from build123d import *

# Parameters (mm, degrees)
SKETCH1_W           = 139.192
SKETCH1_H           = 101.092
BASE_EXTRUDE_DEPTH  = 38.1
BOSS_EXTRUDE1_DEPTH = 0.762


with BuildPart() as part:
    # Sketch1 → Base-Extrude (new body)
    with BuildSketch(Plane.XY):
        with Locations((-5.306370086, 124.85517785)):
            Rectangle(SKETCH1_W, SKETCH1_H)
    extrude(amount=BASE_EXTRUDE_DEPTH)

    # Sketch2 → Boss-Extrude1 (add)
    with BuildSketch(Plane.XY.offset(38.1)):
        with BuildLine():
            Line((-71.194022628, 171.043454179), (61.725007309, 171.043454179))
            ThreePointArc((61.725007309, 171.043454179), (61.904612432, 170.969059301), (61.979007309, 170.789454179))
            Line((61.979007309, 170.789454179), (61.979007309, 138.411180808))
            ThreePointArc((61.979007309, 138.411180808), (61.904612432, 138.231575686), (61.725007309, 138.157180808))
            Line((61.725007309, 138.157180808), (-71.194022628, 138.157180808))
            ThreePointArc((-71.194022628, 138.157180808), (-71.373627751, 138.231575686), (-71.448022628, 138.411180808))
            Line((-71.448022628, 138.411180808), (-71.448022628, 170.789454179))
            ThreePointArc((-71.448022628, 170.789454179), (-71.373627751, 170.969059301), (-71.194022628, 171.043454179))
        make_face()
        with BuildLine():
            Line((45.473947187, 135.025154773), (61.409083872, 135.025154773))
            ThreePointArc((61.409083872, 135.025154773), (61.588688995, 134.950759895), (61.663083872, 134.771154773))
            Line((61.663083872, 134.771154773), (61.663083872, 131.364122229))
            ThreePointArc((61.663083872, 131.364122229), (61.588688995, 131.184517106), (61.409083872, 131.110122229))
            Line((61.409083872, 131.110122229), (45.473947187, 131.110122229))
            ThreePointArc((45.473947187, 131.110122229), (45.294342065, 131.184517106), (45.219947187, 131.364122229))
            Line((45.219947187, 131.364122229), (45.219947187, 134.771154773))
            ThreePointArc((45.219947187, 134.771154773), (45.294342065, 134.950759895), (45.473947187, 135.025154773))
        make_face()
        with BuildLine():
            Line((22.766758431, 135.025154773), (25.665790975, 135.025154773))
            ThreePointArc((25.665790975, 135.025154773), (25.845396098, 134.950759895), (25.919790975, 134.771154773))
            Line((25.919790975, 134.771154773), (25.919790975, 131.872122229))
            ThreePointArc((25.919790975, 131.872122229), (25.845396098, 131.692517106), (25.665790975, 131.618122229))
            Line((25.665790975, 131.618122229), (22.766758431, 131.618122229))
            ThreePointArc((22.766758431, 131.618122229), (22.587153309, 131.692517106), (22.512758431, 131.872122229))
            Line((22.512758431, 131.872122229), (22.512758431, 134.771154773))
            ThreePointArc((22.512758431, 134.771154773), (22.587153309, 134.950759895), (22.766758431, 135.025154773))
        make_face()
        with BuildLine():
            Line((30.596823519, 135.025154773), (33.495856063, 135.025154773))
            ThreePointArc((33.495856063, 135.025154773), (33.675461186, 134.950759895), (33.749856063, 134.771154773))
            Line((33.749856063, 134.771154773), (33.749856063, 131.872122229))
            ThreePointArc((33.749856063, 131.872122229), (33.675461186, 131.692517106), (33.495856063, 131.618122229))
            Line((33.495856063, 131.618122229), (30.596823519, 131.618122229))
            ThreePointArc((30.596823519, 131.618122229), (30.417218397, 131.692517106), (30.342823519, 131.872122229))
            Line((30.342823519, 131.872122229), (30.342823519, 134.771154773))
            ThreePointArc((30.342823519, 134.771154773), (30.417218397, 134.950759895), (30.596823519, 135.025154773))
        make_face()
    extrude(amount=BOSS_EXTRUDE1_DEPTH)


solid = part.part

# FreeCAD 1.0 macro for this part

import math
import FreeCAD as App
import Part
import Sketcher

V = App.Vector
Q = App.Units.Quantity

doc = App.newDocument("Part")
body = doc.addObject("PartDesign::Body", "Body")

# Sketch on XY plane
sketch1 = body.newObject("Sketcher::SketchObject", "Sketch")
sketch1.AttachmentSupport = (doc.getObject("XY_Plane"), [""])
sketch1.MapMode = "FlatFace"
sketch1.addGeometry(Part.LineSegment(V(-75, 175, 0), V(-75, 74, 0)), False)
sketch1.addGeometry(Part.LineSegment(V(-75, 74, 0), V(64, 74, 0)), False)
sketch1.addGeometry(Part.LineSegment(V(64, 74, 0), V(64, 175, 0)), False)
sketch1.addGeometry(Part.LineSegment(V(64, 175, 0), V(-75, 175, 0)), False)
sketch1.addConstraint(Sketcher.Constraint("Coincident", 0, 2, 1, 1))
sketch1.addConstraint(Sketcher.Constraint("Coincident", 1, 2, 2, 1))
sketch1.addConstraint(Sketcher.Constraint("Coincident", 2, 2, 3, 1))
sketch1.addConstraint(Sketcher.Constraint("Coincident", 3, 2, 0, 1))
sketch1.addConstraint(Sketcher.Constraint("Vertical", 0))
sketch1.addConstraint(Sketcher.Constraint("Horizontal", 1))
sketch1.addConstraint(Sketcher.Constraint("Vertical", 2))
sketch1.addConstraint(Sketcher.Constraint("Horizontal", 3))
sketch1.addConstraint(Sketcher.Constraint("DistanceX", 1, 1, 1, 2, Q("5.48 in")))
sketch1.addConstraint(Sketcher.Constraint("DistanceY", 0, 2, 0, 1, Q("3.98 in")))
sketch1.addConstraint(Sketcher.Constraint("DistanceX", 0, 2, -1, 1, Q("74.90237 mm")))
sketch1.addConstraint(Sketcher.Constraint("DistanceY", -1, 1, 0, 2, Q("74.309178 mm")))
pad1 = body.newObject("PartDesign::Pad", "Pad")
pad1.Profile = sketch1
pad1.Length = Q("1.5 in")

# Sketch on XY plane
sketch2 = body.newObject("Sketcher::SketchObject", "Sketch001")
sketch2.AttachmentSupport = (doc.getObject("XY_Plane"), [""])
sketch2.MapMode = "FlatFace"
sketch2.AttachmentOffset = App.Placement(V(0, 0, 1.5 * 25.4), App.Rotation())
sketch2.addGeometry(Part.LineSegment(V(61.73, 171.04, 0), V(-71.19, 171.04, 0)), False)
sketch2.addGeometry(Part.ArcOfCircle(Part.Circle(V(-71.19, 170.79, 0), V(0, 0, 1), 0.25), math.radians(90), math.radians(180)), False)
sketch2.addGeometry(Part.LineSegment(V(-71.45, 170.79, 0), V(-71.45, 138.41, 0)), False)
sketch2.addGeometry(Part.ArcOfCircle(Part.Circle(V(-71.19, 138.41, 0), V(0, 0, 1), 0.25), math.radians(180), math.radians(270)), False)
sketch2.addGeometry(Part.LineSegment(V(-71.19, 138.16, 0), V(61.73, 138.16, 0)), False)
sketch2.addGeometry(Part.ArcOfCircle(Part.Circle(V(61.73, 138.41, 0), V(0, 0, 1), 0.25), math.radians(-90), math.radians(0)), False)
sketch2.addGeometry(Part.LineSegment(V(61.98, 138.41, 0), V(61.98, 170.79, 0)), False)
sketch2.addGeometry(Part.ArcOfCircle(Part.Circle(V(61.73, 170.79, 0), V(0, 0, 1), 0.25), math.radians(0), math.radians(90)), False)
sketch2.addGeometry(Part.LineSegment(V(61.41, 135.03, 0), V(45.47, 135.03, 0)), False)
sketch2.addGeometry(Part.ArcOfCircle(Part.Circle(V(45.47, 134.77, 0), V(0, 0, 1), 0.25), math.radians(90), math.radians(180)), False)
sketch2.addGeometry(Part.LineSegment(V(45.22, 134.77, 0), V(45.22, 131.36, 0)), False)
sketch2.addGeometry(Part.ArcOfCircle(Part.Circle(V(45.47, 131.36, 0), V(0, 0, 1), 0.25), math.radians(180), math.radians(270)), False)
sketch2.addGeometry(Part.LineSegment(V(45.47, 131.11, 0), V(61.41, 131.11, 0)), False)
sketch2.addGeometry(Part.ArcOfCircle(Part.Circle(V(61.41, 131.36, 0), V(0, 0, 1), 0.25), math.radians(-90), math.radians(0)), False)
sketch2.addGeometry(Part.LineSegment(V(61.66, 131.36, 0), V(61.66, 134.77, 0)), False)
sketch2.addGeometry(Part.ArcOfCircle(Part.Circle(V(61.41, 134.77, 0), V(0, 0, 1), 0.25), math.radians(0), math.radians(90)), False)
sketch2.addGeometry(Part.LineSegment(V(25.67, 135.03, 0), V(22.77, 135.03, 0)), False)
sketch2.addGeometry(Part.ArcOfCircle(Part.Circle(V(22.77, 134.77, 0), V(0, 0, 1), 0.25), math.radians(90), math.radians(180)), False)
sketch2.addGeometry(Part.LineSegment(V(22.51, 134.77, 0), V(22.51, 131.87, 0)), False)
sketch2.addGeometry(Part.ArcOfCircle(Part.Circle(V(22.77, 131.87, 0), V(0, 0, 1), 0.25), math.radians(180), math.radians(270)), False)
sketch2.addGeometry(Part.LineSegment(V(22.77, 131.62, 0), V(25.67, 131.62, 0)), False)
sketch2.addGeometry(Part.ArcOfCircle(Part.Circle(V(25.67, 131.87, 0), V(0, 0, 1), 0.25), math.radians(-90), math.radians(0)), False)
sketch2.addGeometry(Part.LineSegment(V(25.92, 131.87, 0), V(25.92, 134.77, 0)), False)
sketch2.addGeometry(Part.ArcOfCircle(Part.Circle(V(25.67, 134.77, 0), V(0, 0, 1), 0.25), math.radians(0), math.radians(90)), False)
sketch2.addGeometry(Part.LineSegment(V(33.5, 135.03, 0), V(30.6, 135.03, 0)), False)
sketch2.addGeometry(Part.ArcOfCircle(Part.Circle(V(30.6, 134.77, 0), V(0, 0, 1), 0.25), math.radians(90), math.radians(180)), False)
sketch2.addGeometry(Part.LineSegment(V(30.34, 134.77, 0), V(30.34, 131.87, 0)), False)
sketch2.addGeometry(Part.ArcOfCircle(Part.Circle(V(30.6, 131.87, 0), V(0, 0, 1), 0.25), math.radians(180), math.radians(270)), False)
sketch2.addGeometry(Part.LineSegment(V(30.6, 131.62, 0), V(33.5, 131.62, 0)), False)
sketch2.addGeometry(Part.ArcOfCircle(Part.Circle(V(33.5, 131.87, 0), V(0, 0, 1), 0.25), math.radians(-90), math.radians(0)), False)
sketch2.addGeometry(Part.LineSegment(V(33.75, 131.87, 0), V(33.75, 134.77, 0)), False)
sketch2.addGeometry(Part.ArcOfCircle(Part.Circle(V(33.5, 134.77, 0), V(0, 0, 1), 0.25), math.radians(0), math.radians(90)), False)
sketch2.addConstraint(Sketcher.Constraint("Tangent", 0, 2, 1, 1))
sketch2.addConstraint(Sketcher.Constraint("Tangent", 1, 2, 2, 1))
sketch2.addConstraint(Sketcher.Constraint("Tangent", 2, 2, 3, 1))
sketch2.addConstraint(Sketcher.Constraint("Tangent", 3, 2, 4, 1))
sketch2.addConstraint(Sketcher.Constraint("Tangent", 4, 2, 5, 1))
sketch2.addConstraint(Sketcher.Constraint("Tangent", 5, 2, 6, 1))
sketch2.addConstraint(Sketcher.Constraint("Tangent", 6, 2, 7, 1))
sketch2.addConstraint(Sketcher.Constraint("Tangent", 7, 2, 0, 1))
sketch2.addConstraint(Sketcher.Constraint("Tangent", 8, 2, 9, 1))
sketch2.addConstraint(Sketcher.Constraint("Tangent", 9, 2, 10, 1))
sketch2.addConstraint(Sketcher.Constraint("Tangent", 10, 2, 11, 1))
sketch2.addConstraint(Sketcher.Constraint("Tangent", 11, 2, 12, 1))
sketch2.addConstraint(Sketcher.Constraint("Tangent", 12, 2, 13, 1))
sketch2.addConstraint(Sketcher.Constraint("Tangent", 13, 2, 14, 1))
sketch2.addConstraint(Sketcher.Constraint("Tangent", 14, 2, 15, 1))
sketch2.addConstraint(Sketcher.Constraint("Tangent", 15, 2, 8, 1))
sketch2.addConstraint(Sketcher.Constraint("Tangent", 16, 2, 17, 1))
sketch2.addConstraint(Sketcher.Constraint("Tangent", 17, 2, 18, 1))
sketch2.addConstraint(Sketcher.Constraint("Tangent", 18, 2, 19, 1))
sketch2.addConstraint(Sketcher.Constraint("Tangent", 19, 2, 20, 1))
sketch2.addConstraint(Sketcher.Constraint("Tangent", 20, 2, 21, 1))
sketch2.addConstraint(Sketcher.Constraint("Tangent", 21, 2, 22, 1))
sketch2.addConstraint(Sketcher.Constraint("Tangent", 22, 2, 23, 1))
sketch2.addConstraint(Sketcher.Constraint("Tangent", 23, 2, 16, 1))
sketch2.addConstraint(Sketcher.Constraint("Tangent", 24, 2, 25, 1))
sketch2.addConstraint(Sketcher.Constraint("Tangent", 25, 2, 26, 1))
sketch2.addConstraint(Sketcher.Constraint("Tangent", 26, 2, 27, 1))
sketch2.addConstraint(Sketcher.Constraint("Tangent", 27, 2, 28, 1))
sketch2.addConstraint(Sketcher.Constraint("Tangent", 28, 2, 29, 1))
sketch2.addConstraint(Sketcher.Constraint("Tangent", 29, 2, 30, 1))
sketch2.addConstraint(Sketcher.Constraint("Tangent", 30, 2, 31, 1))
sketch2.addConstraint(Sketcher.Constraint("Tangent", 31, 2, 24, 1))
sketch2.addConstraint(Sketcher.Constraint("Horizontal", 0))
sketch2.addConstraint(Sketcher.Constraint("Vertical", 2))
sketch2.addConstraint(Sketcher.Constraint("Horizontal", 4))
sketch2.addConstraint(Sketcher.Constraint("Vertical", 6))
sketch2.addConstraint(Sketcher.Constraint("Horizontal", 8))
sketch2.addConstraint(Sketcher.Constraint("Vertical", 10))
sketch2.addConstraint(Sketcher.Constraint("Horizontal", 12))
sketch2.addConstraint(Sketcher.Constraint("Vertical", 14))
sketch2.addConstraint(Sketcher.Constraint("Horizontal", 16))
sketch2.addConstraint(Sketcher.Constraint("Vertical", 18))
sketch2.addConstraint(Sketcher.Constraint("Horizontal", 20))
sketch2.addConstraint(Sketcher.Constraint("Vertical", 22))
sketch2.addConstraint(Sketcher.Constraint("Horizontal", 24))
sketch2.addConstraint(Sketcher.Constraint("Vertical", 26))
sketch2.addConstraint(Sketcher.Constraint("Horizontal", 28))
sketch2.addConstraint(Sketcher.Constraint("Vertical", 30))
sketch2.addConstraint(Sketcher.Constraint("Equal", 1, 3))
sketch2.addConstraint(Sketcher.Constraint("Equal", 3, 5))
sketch2.addConstraint(Sketcher.Constraint("Equal", 5, 7))
sketch2.addConstraint(Sketcher.Constraint("Equal", 7, 9))
sketch2.addConstraint(Sketcher.Constraint("Equal", 9, 11))
sketch2.addConstraint(Sketcher.Constraint("Equal", 11, 13))
sketch2.addConstraint(Sketcher.Constraint("Equal", 13, 15))
sketch2.addConstraint(Sketcher.Constraint("Equal", 15, 17))
sketch2.addConstraint(Sketcher.Constraint("Equal", 17, 19))
sketch2.addConstraint(Sketcher.Constraint("Equal", 19, 21))
sketch2.addConstraint(Sketcher.Constraint("Equal", 21, 23))
sketch2.addConstraint(Sketcher.Constraint("Equal", 23, 25))
sketch2.addConstraint(Sketcher.Constraint("Equal", 25, 27))
sketch2.addConstraint(Sketcher.Constraint("Equal", 27, 29))
sketch2.addConstraint(Sketcher.Constraint("Equal", 29, 31))
sketch2.addConstraint(Sketcher.Constraint("Horizontal", 15, 3, 17, 3))
sketch2.addConstraint(Sketcher.Constraint("Horizontal", 23, 3, 25, 3))
sketch2.addConstraint(Sketcher.Constraint("Horizontal", 21, 3, 27, 3))
sketch2.addConstraint(Sketcher.Constraint("Equal", 20, 24))
sketch2.addConstraint(Sketcher.Constraint("Equal", 28, 18))
sketch2.addConstraint(Sketcher.Constraint("Radius", 1, Q("0.01 in")))
sketch2.addConstraint(Sketcher.Constraint("DistanceY", 11, 3, 19, 3, Q("0.02 in")))
sketch2.addConstraint(Sketcher.Constraint("DistanceX", 0, 2, 0, 1, Q("132.91903 mm")))
sketch2.addConstraint(Sketcher.Constraint("DistanceY", 9, 3, 7, 3, Q("36.018299 mm")))
sketch2.addConstraint(Sketcher.Constraint("DistanceX", 8, 2, 8, 1, Q("15.935137 mm")))
sketch2.addConstraint(Sketcher.Constraint("DistanceX", 16, 2, 16, 1, Q("2.899033 mm")))
sketch2.addConstraint(Sketcher.Constraint("DistanceY", 2, 2, 2, 1, Q("32.378273 mm")))
sketch2.addConstraint(Sketcher.Constraint("DistanceY", -1, 1, 3, 3, Q("138.411181 mm")))
sketch2.addConstraint(Sketcher.Constraint("DistanceX", -1, 1, 17, 3, Q("22.766758 mm")))
sketch2.addConstraint(Sketcher.Constraint("DistanceX", 9, 3, 5, 3, Q("16.25106 mm")))
sketch2.addConstraint(Sketcher.Constraint("DistanceX", 17, 3, 9, 3, Q("22.707189 mm")))
sketch2.addConstraint(Sketcher.Constraint("DistanceX", 31, 3, 8, 2, Q("11.978091 mm")))
pad2 = body.newObject("PartDesign::Pad", "Pad001")
pad2.Profile = sketch2
pad2.Length = Q("0.03 in")

doc.recompute()
